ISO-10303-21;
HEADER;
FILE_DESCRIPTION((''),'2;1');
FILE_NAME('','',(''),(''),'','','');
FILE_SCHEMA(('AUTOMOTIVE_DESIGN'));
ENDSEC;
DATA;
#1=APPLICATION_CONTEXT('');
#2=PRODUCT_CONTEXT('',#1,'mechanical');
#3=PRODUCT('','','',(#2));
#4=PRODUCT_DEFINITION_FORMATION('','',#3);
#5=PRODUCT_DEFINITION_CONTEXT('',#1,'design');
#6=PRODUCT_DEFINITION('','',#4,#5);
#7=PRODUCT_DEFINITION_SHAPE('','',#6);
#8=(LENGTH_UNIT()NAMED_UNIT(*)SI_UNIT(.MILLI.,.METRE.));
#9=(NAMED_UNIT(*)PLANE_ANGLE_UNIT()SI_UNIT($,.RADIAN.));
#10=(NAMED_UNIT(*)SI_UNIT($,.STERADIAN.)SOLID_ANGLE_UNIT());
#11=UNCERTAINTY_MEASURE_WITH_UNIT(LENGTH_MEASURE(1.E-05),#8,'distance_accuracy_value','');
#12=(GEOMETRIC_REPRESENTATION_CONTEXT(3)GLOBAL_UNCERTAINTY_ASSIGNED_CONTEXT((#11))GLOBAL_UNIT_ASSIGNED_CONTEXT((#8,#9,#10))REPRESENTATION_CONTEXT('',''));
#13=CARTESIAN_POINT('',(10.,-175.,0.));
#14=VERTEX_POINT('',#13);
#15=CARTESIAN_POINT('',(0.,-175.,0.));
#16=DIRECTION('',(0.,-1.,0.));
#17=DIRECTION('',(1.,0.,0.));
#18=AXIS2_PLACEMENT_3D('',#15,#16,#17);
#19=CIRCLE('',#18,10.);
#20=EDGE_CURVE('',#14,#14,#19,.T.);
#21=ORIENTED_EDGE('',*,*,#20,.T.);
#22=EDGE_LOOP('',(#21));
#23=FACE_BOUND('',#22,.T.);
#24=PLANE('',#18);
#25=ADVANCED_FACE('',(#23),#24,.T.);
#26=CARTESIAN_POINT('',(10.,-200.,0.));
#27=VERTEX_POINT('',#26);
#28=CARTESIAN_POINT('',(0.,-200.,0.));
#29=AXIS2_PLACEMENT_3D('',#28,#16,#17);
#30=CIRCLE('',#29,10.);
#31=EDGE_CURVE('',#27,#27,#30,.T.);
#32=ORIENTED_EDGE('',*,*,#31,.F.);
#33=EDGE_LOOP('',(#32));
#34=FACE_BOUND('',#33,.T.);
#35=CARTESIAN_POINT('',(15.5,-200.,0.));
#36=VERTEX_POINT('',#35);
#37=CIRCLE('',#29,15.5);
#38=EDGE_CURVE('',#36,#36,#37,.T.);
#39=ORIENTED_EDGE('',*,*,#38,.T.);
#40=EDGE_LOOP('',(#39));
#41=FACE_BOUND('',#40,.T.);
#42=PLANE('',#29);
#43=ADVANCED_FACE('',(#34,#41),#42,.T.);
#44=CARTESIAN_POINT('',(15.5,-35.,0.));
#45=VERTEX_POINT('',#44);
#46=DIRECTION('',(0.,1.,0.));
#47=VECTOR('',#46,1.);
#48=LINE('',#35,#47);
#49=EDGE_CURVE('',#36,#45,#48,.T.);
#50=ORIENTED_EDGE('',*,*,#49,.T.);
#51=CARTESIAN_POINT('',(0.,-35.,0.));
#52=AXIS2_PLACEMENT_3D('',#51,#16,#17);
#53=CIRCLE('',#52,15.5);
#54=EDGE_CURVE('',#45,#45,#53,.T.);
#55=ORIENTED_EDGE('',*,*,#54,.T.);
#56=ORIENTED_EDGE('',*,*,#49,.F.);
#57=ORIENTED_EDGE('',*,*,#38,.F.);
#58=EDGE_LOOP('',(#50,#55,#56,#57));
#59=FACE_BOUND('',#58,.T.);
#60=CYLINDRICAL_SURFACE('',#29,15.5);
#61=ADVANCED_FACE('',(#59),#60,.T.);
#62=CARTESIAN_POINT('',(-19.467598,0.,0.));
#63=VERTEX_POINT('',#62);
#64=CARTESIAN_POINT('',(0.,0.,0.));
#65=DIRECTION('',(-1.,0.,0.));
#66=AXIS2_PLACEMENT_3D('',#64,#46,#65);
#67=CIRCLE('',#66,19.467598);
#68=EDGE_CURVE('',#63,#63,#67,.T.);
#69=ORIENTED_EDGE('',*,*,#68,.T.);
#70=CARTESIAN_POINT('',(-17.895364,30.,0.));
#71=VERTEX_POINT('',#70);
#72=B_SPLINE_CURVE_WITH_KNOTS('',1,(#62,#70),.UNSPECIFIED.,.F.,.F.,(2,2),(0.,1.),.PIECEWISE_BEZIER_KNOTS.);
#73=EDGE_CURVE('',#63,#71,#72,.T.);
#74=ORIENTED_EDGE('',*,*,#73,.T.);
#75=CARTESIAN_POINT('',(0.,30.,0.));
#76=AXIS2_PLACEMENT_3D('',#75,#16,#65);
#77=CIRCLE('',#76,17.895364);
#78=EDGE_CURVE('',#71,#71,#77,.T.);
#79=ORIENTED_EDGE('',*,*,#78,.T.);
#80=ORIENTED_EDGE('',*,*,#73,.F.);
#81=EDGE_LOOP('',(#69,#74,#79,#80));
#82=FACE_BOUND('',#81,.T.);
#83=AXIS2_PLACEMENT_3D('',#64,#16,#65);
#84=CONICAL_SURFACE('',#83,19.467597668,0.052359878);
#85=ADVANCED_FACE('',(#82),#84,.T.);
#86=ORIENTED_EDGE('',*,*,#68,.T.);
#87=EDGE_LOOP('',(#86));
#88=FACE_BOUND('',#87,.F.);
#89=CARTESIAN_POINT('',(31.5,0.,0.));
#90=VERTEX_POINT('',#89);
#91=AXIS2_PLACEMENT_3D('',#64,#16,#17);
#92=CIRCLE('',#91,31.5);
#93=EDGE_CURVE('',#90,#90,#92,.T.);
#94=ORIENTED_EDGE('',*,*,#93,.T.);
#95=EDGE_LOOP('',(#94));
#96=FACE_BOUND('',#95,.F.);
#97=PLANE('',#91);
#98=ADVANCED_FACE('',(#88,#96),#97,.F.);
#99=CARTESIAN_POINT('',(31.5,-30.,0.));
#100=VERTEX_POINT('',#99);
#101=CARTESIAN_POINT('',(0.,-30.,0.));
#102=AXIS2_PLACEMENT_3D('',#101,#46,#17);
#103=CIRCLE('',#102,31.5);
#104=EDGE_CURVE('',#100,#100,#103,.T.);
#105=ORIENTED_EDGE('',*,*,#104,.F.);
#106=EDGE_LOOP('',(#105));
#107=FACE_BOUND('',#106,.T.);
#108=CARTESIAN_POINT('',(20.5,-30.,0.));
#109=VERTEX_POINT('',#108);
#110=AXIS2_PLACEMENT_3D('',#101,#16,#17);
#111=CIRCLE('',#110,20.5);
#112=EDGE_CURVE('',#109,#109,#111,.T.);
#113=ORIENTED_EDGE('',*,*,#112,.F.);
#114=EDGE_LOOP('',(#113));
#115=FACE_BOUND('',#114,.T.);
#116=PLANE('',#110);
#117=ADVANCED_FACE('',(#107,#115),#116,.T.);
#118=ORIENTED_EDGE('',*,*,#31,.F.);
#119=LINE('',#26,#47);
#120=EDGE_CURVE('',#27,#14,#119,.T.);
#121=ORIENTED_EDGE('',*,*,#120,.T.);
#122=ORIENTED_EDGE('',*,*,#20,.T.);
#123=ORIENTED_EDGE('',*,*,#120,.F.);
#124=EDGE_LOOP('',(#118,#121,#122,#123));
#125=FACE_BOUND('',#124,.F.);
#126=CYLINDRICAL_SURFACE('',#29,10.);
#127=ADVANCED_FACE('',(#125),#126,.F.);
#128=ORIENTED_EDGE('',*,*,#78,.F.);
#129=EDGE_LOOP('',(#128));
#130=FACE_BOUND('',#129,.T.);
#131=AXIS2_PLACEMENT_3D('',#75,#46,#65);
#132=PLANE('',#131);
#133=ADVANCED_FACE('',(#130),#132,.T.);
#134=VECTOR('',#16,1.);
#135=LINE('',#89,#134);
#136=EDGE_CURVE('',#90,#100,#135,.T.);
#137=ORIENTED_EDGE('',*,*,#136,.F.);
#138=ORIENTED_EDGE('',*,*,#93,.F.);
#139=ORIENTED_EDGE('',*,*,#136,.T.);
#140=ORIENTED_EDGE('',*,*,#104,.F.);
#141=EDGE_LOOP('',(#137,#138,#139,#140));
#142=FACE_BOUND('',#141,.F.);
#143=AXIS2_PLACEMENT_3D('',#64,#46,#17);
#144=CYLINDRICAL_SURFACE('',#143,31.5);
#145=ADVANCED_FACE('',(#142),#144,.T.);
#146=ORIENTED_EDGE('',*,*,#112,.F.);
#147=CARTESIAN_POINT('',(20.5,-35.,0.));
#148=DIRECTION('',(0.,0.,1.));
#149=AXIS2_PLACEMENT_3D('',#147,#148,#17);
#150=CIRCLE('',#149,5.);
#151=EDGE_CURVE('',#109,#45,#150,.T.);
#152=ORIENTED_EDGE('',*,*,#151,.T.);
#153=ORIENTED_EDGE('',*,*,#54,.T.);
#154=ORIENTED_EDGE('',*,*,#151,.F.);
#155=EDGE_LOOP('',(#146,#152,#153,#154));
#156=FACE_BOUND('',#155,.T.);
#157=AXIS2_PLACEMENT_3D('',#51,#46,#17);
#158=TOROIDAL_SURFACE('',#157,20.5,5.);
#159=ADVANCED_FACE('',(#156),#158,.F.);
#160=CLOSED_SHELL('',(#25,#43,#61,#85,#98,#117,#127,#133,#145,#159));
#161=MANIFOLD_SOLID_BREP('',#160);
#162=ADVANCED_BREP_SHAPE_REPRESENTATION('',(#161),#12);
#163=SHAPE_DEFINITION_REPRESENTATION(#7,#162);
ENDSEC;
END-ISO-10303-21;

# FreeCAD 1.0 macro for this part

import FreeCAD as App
import Part
import Sketcher
from FreeCAD import Vector


def edges_at(feature, points):
    """Names of the edges that pass closest to the given points."""
    edges = feature.Shape.Edges
    near = lambda p: min(range(len(edges)), key=lambda i: edges[i].distToShape(Part.Vertex(*p))[0])
    return sorted({f"Edge{near(p) + 1}" for p in points})

doc = App.newDocument("Part")
body = doc.addObject("PartDesign::Body", "Body")

# Sketch on XZ plane
sketch1 = doc.addObject("Sketcher::SketchObject", "Sketch")
body.addObject(sketch1)
sketch1.AttachmentSupport = (doc.XZ_Plane, [""])
sketch1.MapMode = "FlatFace"
sketch1.addGeometry(Part.Circle(Vector(0, 0, 0), Vector(0, 0, 1), 32), False)
sketch1.addConstraint(Sketcher.Constraint("Coincident", 0, 3, -1, 1))
sketch1.addConstraint(Sketcher.Constraint("Diameter", 0, 63.0))
pad1 = doc.addObject("PartDesign::Pad", "Pad")
body.addObject(pad1)
pad1.Profile = sketch1
pad1.Length = 200

# Sketch on XZ plane
sketch2 = doc.addObject("Sketcher::SketchObject", "Sketch001")
body.addObject(sketch2)
sketch2.AttachmentSupport = (doc.XZ_Plane, [""])
sketch2.MapMode = "FlatFace"
sketch2.AttachmentOffset = App.Placement(Vector(0, 0, 200), App.Rotation())
sketch2.addGeometry(Part.Circle(Vector(0, 0, 0), Vector(0, 0, 1), 49), False)
sketch2.addGeometry(Part.Circle(Vector(0, 0, 0), Vector(0, 0, 1), 16), False)
sketch2.addConstraint(Sketcher.Constraint("Coincident", 0, 3, -1, 1))
sketch2.addConstraint(Sketcher.Constraint("Coincident", 1, 3, -1, 1))
sketch2.addConstraint(Sketcher.Constraint("Diameter", 1, 31.0))
sketch2.addConstraint(Sketcher.Constraint("Diameter", 0, 98.92503))
pocket1 = doc.addObject("PartDesign::Pocket", "Pocket")
body.addObject(pocket1)
pocket1.Profile = sketch2
pocket1.Length = 170
doc.recompute()

fillet = doc.addObject("PartDesign::Fillet", "Fillet")
body.addObject(fillet)
fillet.Base = (pocket1, edges_at(pocket1, [(-15.5, -30, 0)]))
fillet.Radius = 5

# Sketch on XZ plane
sketch3 = doc.addObject("Sketcher::SketchObject", "Sketch002")
body.addObject(sketch3)
sketch3.AttachmentSupport = (doc.XZ_Plane, [""])
sketch3.MapMode = "FlatFace"
sketch3.addGeometry(Part.Circle(Vector(0, 0, 0), Vector(0, 0, 1), 19), False)
sketch3.addConstraint(Sketcher.Constraint("Coincident", 0, 3, -1, 1))
sketch3.addConstraint(Sketcher.Constraint("Diameter", 0, 38.935195))
pad2 = doc.addObject("PartDesign::Pad", "Pad001")
body.addObject(pad2)
pad2.Profile = sketch3
pad2.Length = 30
pad2.Reversed = True
pad2.TaperAngle = -3

# Sketch on XZ plane
sketch4 = doc.addObject("Sketcher::SketchObject", "Sketch003")
body.addObject(sketch4)
sketch4.AttachmentSupport = (doc.XZ_Plane, [""])
sketch4.MapMode = "FlatFace"
sketch4.AttachmentOffset = App.Placement(Vector(0, 0, 200), App.Rotation())
sketch4.addGeometry(Part.Circle(Vector(0, 0, 0), Vector(0, 0, 1), 10), False)
sketch4.addConstraint(Sketcher.Constraint("Coincident", 0, 3, -1, 1))
sketch4.addConstraint(Sketcher.Constraint("Diameter", 0, 20.0))
pocket2 = doc.addObject("PartDesign::Pocket", "Pocket001")
body.addObject(pocket2)
pocket2.Profile = sketch4
pocket2.Length = 25

doc.recompute()
